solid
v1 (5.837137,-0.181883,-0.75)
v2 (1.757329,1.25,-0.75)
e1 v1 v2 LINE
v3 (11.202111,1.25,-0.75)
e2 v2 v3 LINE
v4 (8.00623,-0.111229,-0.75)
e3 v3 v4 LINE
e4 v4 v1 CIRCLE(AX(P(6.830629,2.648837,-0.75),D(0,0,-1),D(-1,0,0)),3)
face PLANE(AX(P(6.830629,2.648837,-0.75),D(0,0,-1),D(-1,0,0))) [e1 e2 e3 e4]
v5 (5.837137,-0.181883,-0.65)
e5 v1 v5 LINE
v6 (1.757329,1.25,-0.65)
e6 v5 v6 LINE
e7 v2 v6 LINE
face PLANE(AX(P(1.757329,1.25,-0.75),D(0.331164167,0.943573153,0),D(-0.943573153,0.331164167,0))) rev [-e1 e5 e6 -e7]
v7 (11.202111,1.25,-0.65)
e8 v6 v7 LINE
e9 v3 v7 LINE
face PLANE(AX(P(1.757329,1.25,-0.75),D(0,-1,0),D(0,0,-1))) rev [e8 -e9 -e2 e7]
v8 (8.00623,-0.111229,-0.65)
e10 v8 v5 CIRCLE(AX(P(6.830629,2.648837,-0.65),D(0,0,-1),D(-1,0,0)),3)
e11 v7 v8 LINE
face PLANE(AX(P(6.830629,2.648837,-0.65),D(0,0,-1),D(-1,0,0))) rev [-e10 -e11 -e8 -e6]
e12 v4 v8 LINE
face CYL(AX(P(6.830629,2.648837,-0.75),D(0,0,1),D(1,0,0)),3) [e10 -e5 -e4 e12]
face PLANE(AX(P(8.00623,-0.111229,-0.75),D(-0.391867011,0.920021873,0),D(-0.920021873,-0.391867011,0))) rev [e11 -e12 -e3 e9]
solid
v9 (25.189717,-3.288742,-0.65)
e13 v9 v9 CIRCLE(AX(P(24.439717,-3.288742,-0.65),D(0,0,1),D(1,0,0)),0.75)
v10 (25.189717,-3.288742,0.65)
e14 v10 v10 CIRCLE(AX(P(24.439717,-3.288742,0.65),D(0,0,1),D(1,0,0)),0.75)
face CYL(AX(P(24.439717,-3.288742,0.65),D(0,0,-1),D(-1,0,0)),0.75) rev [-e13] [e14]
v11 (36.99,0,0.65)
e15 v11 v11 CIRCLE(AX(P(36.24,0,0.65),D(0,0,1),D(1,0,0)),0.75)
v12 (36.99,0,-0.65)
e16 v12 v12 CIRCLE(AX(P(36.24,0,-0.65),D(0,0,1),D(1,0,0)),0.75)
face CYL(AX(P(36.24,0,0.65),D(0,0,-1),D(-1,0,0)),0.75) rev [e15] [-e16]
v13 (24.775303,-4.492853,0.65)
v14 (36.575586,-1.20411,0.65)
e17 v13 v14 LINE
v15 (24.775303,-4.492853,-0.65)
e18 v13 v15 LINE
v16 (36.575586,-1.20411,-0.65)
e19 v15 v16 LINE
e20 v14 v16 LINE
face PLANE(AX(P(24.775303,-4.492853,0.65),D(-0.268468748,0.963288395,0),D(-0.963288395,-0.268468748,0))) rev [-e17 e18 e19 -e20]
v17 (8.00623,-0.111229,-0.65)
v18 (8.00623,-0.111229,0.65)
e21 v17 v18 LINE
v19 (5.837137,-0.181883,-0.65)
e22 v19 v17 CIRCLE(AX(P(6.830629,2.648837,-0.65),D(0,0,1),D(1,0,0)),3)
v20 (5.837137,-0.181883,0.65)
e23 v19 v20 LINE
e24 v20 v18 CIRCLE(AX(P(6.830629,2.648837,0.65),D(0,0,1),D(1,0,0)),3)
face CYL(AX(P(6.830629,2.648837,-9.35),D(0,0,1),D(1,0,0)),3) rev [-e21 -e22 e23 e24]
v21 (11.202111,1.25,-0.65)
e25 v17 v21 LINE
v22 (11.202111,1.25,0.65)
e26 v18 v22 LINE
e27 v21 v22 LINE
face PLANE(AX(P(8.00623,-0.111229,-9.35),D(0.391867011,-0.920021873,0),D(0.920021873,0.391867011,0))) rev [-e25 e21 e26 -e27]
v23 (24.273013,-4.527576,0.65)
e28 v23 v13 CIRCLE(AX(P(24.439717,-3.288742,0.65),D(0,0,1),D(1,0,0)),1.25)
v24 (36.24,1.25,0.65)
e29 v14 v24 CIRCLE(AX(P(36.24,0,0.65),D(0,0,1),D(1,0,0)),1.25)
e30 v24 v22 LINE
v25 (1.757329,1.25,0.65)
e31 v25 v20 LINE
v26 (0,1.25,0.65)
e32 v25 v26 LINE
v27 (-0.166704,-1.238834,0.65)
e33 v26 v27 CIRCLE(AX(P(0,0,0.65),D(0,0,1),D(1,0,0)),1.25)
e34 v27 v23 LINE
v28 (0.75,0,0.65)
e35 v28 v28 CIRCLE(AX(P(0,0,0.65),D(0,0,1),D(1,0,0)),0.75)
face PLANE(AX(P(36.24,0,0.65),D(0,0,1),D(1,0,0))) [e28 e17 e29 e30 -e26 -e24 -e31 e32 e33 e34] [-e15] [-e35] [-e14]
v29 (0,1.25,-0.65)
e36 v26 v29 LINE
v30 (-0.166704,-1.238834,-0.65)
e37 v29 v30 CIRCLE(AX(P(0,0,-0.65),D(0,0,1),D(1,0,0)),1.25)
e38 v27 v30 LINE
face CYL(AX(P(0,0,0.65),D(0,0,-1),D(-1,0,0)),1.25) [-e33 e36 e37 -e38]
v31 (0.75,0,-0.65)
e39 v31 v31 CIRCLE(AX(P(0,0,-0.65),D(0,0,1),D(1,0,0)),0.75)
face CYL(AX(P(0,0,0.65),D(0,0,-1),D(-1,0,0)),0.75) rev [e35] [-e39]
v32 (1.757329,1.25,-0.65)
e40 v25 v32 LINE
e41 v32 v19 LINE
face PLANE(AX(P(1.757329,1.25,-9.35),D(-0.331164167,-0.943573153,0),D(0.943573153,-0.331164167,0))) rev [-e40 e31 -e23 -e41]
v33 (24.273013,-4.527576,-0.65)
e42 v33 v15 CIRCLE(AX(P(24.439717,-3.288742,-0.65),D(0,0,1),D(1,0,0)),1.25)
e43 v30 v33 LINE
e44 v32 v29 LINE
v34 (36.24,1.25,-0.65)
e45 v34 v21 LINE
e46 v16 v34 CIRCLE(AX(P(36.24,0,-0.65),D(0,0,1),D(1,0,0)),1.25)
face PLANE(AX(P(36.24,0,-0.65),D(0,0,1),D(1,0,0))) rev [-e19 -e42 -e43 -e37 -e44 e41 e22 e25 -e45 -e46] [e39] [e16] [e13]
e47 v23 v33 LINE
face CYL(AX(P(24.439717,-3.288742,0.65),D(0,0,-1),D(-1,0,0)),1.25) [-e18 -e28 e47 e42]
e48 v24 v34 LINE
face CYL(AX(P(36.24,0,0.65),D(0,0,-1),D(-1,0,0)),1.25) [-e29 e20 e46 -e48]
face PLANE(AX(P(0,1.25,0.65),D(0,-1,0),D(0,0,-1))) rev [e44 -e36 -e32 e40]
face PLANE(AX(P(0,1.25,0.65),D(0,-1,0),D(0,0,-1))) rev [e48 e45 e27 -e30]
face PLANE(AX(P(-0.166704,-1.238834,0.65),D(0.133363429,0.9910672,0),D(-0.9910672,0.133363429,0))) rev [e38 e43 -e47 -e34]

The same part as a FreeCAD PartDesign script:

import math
import FreeCAD as App
import Part
import Sketcher

doc = App.newDocument("Part")
body = doc.addObject("PartDesign::Body", "Body")

sketch1 = body.newObject("Sketcher::SketchObject", "Sketch")
sketch1.AttachmentSupport = (doc.getObject("XY_Plane"), [""])
sketch1.MapMode = "FlatFace"
sketch1.addGeometry(Part.LineSegment(App.Vector(36.2, 1.2, 0), App.Vector(0, 1.2, 0)), False)
sketch1.addGeometry(Part.ArcOfCircle(Part.Circle(App.Vector(0, 0, 0), App.Vector(0, 0, 1), 1.2), math.radians(90), math.radians(262)), False)
sketch1.addGeometry(Part.LineSegment(App.Vector(-0.2, -1.2, 0), App.Vector(24.3, -4.5, 0)), False)
sketch1.addGeometry(Part.ArcOfCircle(Part.Circle(App.Vector(24.4, -3.3, 0), App.Vector(0, 0, 1), 1.3), math.radians(-98), math.radians(-74)), False)
sketch1.addGeometry(Part.LineSegment(App.Vector(24.8, -4.5, 0), App.Vector(36.6, -1.2, 0)), False)
sketch1.addGeometry(Part.ArcOfCircle(Part.Circle(App.Vector(36.2, 0, 0), App.Vector(0, 0, 1), 1.2), math.radians(-74), math.radians(90)), False)
sketch1.addGeometry(Part.Circle(App.Vector(24.4, -3.3, 0), App.Vector(0, 0, 1), 0.8), False)
sketch1.addGeometry(Part.Circle(App.Vector(36.2, 0, 0), App.Vector(0, 0, 1), 0.8), False)
sketch1.addGeometry(Part.Circle(App.Vector(0, 0, 0), App.Vector(0, 0, 1), 0.8), False)
sketch1.addConstraint(Sketcher.Constraint("Tangent", 0, 2, 1, 1))
sketch1.addConstraint(Sketcher.Constraint("Tangent", 1, 2, 2, 1))
sketch1.addConstraint(Sketcher.Constraint("Tangent", 2, 2, 3, 1))
sketch1.addConstraint(Sketcher.Constraint("Tangent", 3, 2, 4, 1))
sketch1.addConstraint(Sketcher.Constraint("Tangent", 4, 2, 5, 1))
sketch1.addConstraint(Sketcher.Constraint("Tangent", 5, 2, 0, 1))
sketch1.addConstraint(Sketcher.Constraint("Horizontal", 0))
sketch1.addConstraint(Sketcher.Constraint("Coincident", 1, 3, -1, 1))
sketch1.addConstraint(Sketcher.Constraint("Coincident", 8, 3, -1, 1))
sketch1.addConstraint(Sketcher.Constraint("Coincident", 6, 3, 3, 3))
sketch1.addConstraint(Sketcher.Constraint("Coincident", 7, 3, 5, 3))
sketch1.addConstraint(Sketcher.Constraint("Equal", 1, 3))
sketch1.addConstraint(Sketcher.Constraint("Equal", 3, 5))
sketch1.addConstraint(Sketcher.Constraint("Equal", 6, 7))
sketch1.addConstraint(Sketcher.Constraint("Equal", 7, 8))
sketch1.addConstraint(Sketcher.Constraint("Diameter", 6, 1.5))
sketch1.addConstraint(Sketcher.Constraint("Radius", 1, 1.25))
sketch1.addConstraint(Sketcher.Constraint("DistanceX", 0, 2, 0, 1, 36.24))
sketch1.addConstraint(Sketcher.Constraint("Distance", 2, 24.66))
sketch1.addConstraint(Sketcher.Constraint("Distance", 4, 12.25))
pad1 = body.newObject("PartDesign::Pad", "Pad")
pad1.Profile = sketch1
pad1.Length = 1.3
pad1.Midplane = True

sketch2 = body.newObject("Sketcher::SketchObject", "Sketch001")
sketch2.AttachmentSupport = (doc.getObject("XY_Plane"), [""])
sketch2.MapMode = "FlatFace"
sketch2.AttachmentOffset = App.Placement(App.Vector(0, 0, 0.65), App.Rotation())
sketch2.addGeometry(Part.LineSegment(App.Vector(1.8, 1.2, 0), App.Vector(5.8, -0.2, 0)), False)
sketch2.addGeometry(Part.ArcOfCircle(Part.Circle(App.Vector(6.8, 2.6, 0), App.Vector(0, 0, 1), 3), math.radians(-109), math.radians(-67)), False)
sketch2.addGeometry(Part.LineSegment(App.Vector(8, -0.1, 0), App.Vector(11.2, 1.2, 0)), False)
sketch2.addGeometry(Part.LineSegment(App.Vector(11.2, 1.2, 0), App.Vector(1.8, 1.2, 0)), False)
sketch2.addConstraint(Sketcher.Constraint("Tangent", 0, 2, 1, 1))
sketch2.addConstraint(Sketcher.Constraint("Tangent", 1, 2, 2, 1))
sketch2.addConstraint(Sketcher.Constraint("Coincident", 2, 2, 3, 1))
sketch2.addConstraint(Sketcher.Constraint("Coincident", 3, 2, 0, 1))
sketch2.addConstraint(Sketcher.Constraint("Horizontal", 3))
sketch2.addConstraint(Sketcher.Constraint("Radius", 1, 3.0))
sketch2.addConstraint(Sketcher.Constraint("DistanceY", -1, 1, 2, 2, 1.25))
sketch2.addConstraint(Sketcher.Constraint("Distance", 2, 3.473701))
sketch2.addConstraint(Sketcher.Constraint("DistanceX", 1, 3, 1, 2, 1.175601))
sketch2.addConstraint(Sketcher.Constraint("DistanceX", 3, 2, 1, 3, 5.0733))
sketch2.addConstraint(Sketcher.Constraint("DistanceX", -1, 1, 1, 3, 6.830629))
pocket1 = body.newObject("PartDesign::Pocket", "Pocket")
pocket1.Profile = sketch2
pocket1.Length = 10
body2 = doc.addObject("PartDesign::Body", "Body001")

sketch3 = body2.newObject("Sketcher::SketchObject", "Sketch002")
sketch3.AttachmentSupport = (doc.getObject("XY_Plane001"), [""])
sketch3.MapMode = "FlatFace"
sketch3.AttachmentOffset = App.Placement(App.Vector(0, 0, -0.65), App.Rotation())
sketch3.addGeometry(Part.LineSegment(App.Vector(11.2, 1.2, 0), App.Vector(8, -0.1, 0)), False)
sketch3.addGeometry(Part.ArcOfCircle(Part.Circle(App.Vector(6.8, 2.6, 0), App.Vector(0, 0, 1), 3), math.radians(-109), math.radians(-67)), False)
sketch3.addGeometry(Part.LineSegment(App.Vector(5.8, -0.2, 0), App.Vector(1.8, 1.2, 0)), False)
sketch3.addGeometry(Part.LineSegment(App.Vector(1.8, 1.2, 0), App.Vector(11.2, 1.2, 0)), False)
sketch3.addConstraint(Sketcher.Constraint("Tangent", 0, 2, 1, 2))
sketch3.addConstraint(Sketcher.Constraint("Tangent", 1, 1, 2, 1))
sketch3.addConstraint(Sketcher.Constraint("Coincident", 2, 2, 3, 1))
sketch3.addConstraint(Sketcher.Constraint("Coincident", 3, 2, 0, 1))
sketch3.addConstraint(Sketcher.Constraint("Horizontal", 3))
sketch3.addConstraint(Sketcher.Constraint("Radius", 1, 3.0))
sketch3.addConstraint(Sketcher.Constraint("DistanceY", -1, 1, 2, 2, 1.25))
sketch3.addConstraint(Sketcher.Constraint("Distance", 0, 3.473701))
sketch3.addConstraint(Sketcher.Constraint("DistanceX", 1, 3, 0, 2, 1.175601))
sketch3.addConstraint(Sketcher.Constraint("DistanceX", 2, 2, 1, 3, 5.0733))
sketch3.addConstraint(Sketcher.Constraint("DistanceX", -1, 1, 1, 3, 6.830629))
pad2 = body2.newObject("PartDesign::Pad", "Pad001")
pad2.Profile = sketch3
pad2.Length = 0.1
pad2.Reversed = True

doc.recompute()
